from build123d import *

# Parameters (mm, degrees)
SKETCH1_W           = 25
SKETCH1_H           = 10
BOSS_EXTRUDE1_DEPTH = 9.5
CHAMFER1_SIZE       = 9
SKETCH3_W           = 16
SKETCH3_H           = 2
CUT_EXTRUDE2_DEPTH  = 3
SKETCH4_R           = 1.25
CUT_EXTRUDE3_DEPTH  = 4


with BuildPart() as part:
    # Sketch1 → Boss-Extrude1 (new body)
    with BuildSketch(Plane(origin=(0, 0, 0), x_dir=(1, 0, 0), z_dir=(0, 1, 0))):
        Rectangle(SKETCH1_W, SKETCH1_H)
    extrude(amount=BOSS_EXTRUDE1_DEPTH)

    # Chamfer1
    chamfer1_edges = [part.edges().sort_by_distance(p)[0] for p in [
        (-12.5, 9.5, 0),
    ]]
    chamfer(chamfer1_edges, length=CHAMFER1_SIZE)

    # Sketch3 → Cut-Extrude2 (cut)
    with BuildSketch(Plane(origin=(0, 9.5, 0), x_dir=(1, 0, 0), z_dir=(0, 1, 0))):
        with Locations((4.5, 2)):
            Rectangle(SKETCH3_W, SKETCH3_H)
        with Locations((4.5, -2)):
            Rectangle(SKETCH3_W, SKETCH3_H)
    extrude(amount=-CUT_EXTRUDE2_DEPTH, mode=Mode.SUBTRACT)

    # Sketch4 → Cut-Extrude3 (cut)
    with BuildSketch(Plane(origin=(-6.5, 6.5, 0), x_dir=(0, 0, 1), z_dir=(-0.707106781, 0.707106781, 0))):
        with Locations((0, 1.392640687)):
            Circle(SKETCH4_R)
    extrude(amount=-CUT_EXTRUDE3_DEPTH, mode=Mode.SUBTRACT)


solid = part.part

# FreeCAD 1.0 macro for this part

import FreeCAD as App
import Part
import Sketcher
Q = App.Units.Quantity


def edges_at(feature, points):
    """Names of the edges that pass closest to the given points."""
    edges = feature.Shape.Edges
    near = lambda p: min(range(len(edges)), key=lambda i: edges[i].distToShape(Part.Vertex(*p))[0])
    return sorted({f"Edge{near(p) + 1}" for p in points})

doc = App.newDocument("Part")
body = doc.addObject("PartDesign::Body", "Body")

# Sketch on XZ plane
sketch1 = body.newObject("Sketcher::SketchObject", "Sketch")
sketch1.AttachmentSupport = (doc.getObject("XZ_Plane"), [""])
sketch1.MapMode = "FlatFace"
sketch1.addGeometry([
    Part.LineSegment(App.Vector(-12, -5, 0), App.Vector(-12, 5, 0)),
    Part.LineSegment(App.Vector(-12, 5, 0), App.Vector(12, 5, 0)),
    Part.LineSegment(App.Vector(12, 5, 0), App.Vector(12, -5, 0)),
    Part.LineSegment(App.Vector(12, -5, 0), App.Vector(-12, -5, 0)),
], False)
sketch1.addConstraint([
    Sketcher.Constraint("Coincident", 0, 2, 1, 1),
    Sketcher.Constraint("Coincident", 1, 2, 2, 1),
    Sketcher.Constraint("Coincident", 2, 2, 3, 1),
    Sketcher.Constraint("Coincident", 3, 2, 0, 1),
    Sketcher.Constraint("Vertical", 0),
    Sketcher.Constraint("Horizontal", 1),
    Sketcher.Constraint("Vertical", 2),
    Sketcher.Constraint("Horizontal", 3),
    Sketcher.Constraint("Symmetric", 0, 2, 2, 2, -1, 1),
    Sketcher.Constraint("DistanceX", 1, 1, 1, 2, Q("25 mm")),
    Sketcher.Constraint("DistanceY", 0, 1, 0, 2, Q("10 mm")),
])
pad1 = body.newObject("PartDesign::Pad", "Pad")
pad1.Profile = sketch1
pad1.Length = 9.5
pad1.Reversed = True
doc.recompute()

chamfer = body.newObject("PartDesign::Chamfer", "Chamfer")
chamfer.Base = (pad1, edges_at(pad1, [(-12.5, 9.5, 0)]))
chamfer.Size = 9

# Sketch on XZ plane
sketch2 = body.newObject("Sketcher::SketchObject", "Sketch001")
sketch2.AttachmentSupport = (doc.getObject("XZ_Plane"), [""])
sketch2.MapMode = "FlatFace"
sketch2.AttachmentOffset = App.Placement(App.Vector(0, 0, -9.5), App.Rotation())
sketch2.addGeometry([
    Part.LineSegment(App.Vector(-3.5, -3, 0), App.Vector(-3.5, -1, 0)),  # 0
    Part.LineSegment(App.Vector(-3.5, -1, 0), App.Vector(12.5, -1, 0)),  # 1
    Part.LineSegment(App.Vector(12.5, -1, 0), App.Vector(12.5, -3, 0)),  # 2
    Part.LineSegment(App.Vector(12.5, -3, 0), App.Vector(-3.5, -3, 0)),  # 3
    Part.LineSegment(App.Vector(-3.5, 1, 0), App.Vector(-3.5, 3, 0)),  # 4
    Part.LineSegment(App.Vector(-3.5, 3, 0), App.Vector(12.5, 3, 0)),  # 5
    Part.LineSegment(App.Vector(12.5, 3, 0), App.Vector(12.5, 1, 0)),  # 6
    Part.LineSegment(App.Vector(12.5, 1, 0), App.Vector(-3.5, 1, 0)),  # 7
], False)
sketch2.addConstraint([
    Sketcher.Constraint("Coincident", 0, 2, 1, 1),
    Sketcher.Constraint("Coincident", 1, 2, 2, 1),
    Sketcher.Constraint("Coincident", 2, 2, 3, 1),
    Sketcher.Constraint("Coincident", 3, 2, 0, 1),
    Sketcher.Constraint("Coincident", 4, 2, 5, 1),
    Sketcher.Constraint("Coincident", 5, 2, 6, 1),
    Sketcher.Constraint("Coincident", 6, 2, 7, 1),
    Sketcher.Constraint("Coincident", 7, 2, 4, 1),
    Sketcher.Constraint("Vertical", 0),
    Sketcher.Constraint("Horizontal", 1),
    Sketcher.Constraint("Vertical", 2),
    Sketcher.Constraint("Horizontal", 3),
    Sketcher.Constraint("Vertical", 4),
    Sketcher.Constraint("Horizontal", 5),
    Sketcher.Constraint("Vertical", 6),
    Sketcher.Constraint("Horizontal", 7),
    Sketcher.Constraint("Symmetric", 3, 2, 4, 2, -1),
    Sketcher.Constraint("Symmetric", 1, 2, 6, 2, -1),
    Sketcher.Constraint("DistanceX", 1, 1, 1, 2, Q("16 mm")),
    Sketcher.Constraint("DistanceY", 0, 1, 0, 2, Q("2 mm")),
    Sketcher.Constraint("DistanceY", 0, 2, -1, 1, Q("1 mm")),
    Sketcher.Constraint("DistanceX", 0, 2, -1, 1, Q("3.5 mm")),
])
pocket1 = body.newObject("PartDesign::Pocket", "Pocket")
pocket1.Profile = sketch2
pocket1.Length = 3
pocket1.Reversed = True

# Sketch on an angled plane
sketch3 = body.newObject("Sketcher::SketchObject", "Sketch002")
sketch3.Placement = App.Placement(App.Vector(-6.5, 6.5, 0), App.Rotation(App.Vector(0, 0, 1), App.Vector(0.707106781, 0.707106781, 0), App.Vector(-0.707106781, 0.707106781, 0), "ZXY"))
sketch3.addGeometry(Part.Circle(App.Vector(0, 1.4, 0), App.Vector(0, 0, 1), 1.2), False)
sketch3.addConstraint([
    Sketcher.Constraint("PointOnObject", 0, 3, -2),
    Sketcher.Constraint("Diameter", 0, Q("2.5 mm")),
    Sketcher.Constraint("DistanceY", -1, 1, 0, 3, Q("1.392641 mm")),
])
pocket2 = body.newObject("PartDesign::Pocket", "Pocket001")
pocket2.Profile = sketch3
pocket2.Length = 4

doc.recompute()
